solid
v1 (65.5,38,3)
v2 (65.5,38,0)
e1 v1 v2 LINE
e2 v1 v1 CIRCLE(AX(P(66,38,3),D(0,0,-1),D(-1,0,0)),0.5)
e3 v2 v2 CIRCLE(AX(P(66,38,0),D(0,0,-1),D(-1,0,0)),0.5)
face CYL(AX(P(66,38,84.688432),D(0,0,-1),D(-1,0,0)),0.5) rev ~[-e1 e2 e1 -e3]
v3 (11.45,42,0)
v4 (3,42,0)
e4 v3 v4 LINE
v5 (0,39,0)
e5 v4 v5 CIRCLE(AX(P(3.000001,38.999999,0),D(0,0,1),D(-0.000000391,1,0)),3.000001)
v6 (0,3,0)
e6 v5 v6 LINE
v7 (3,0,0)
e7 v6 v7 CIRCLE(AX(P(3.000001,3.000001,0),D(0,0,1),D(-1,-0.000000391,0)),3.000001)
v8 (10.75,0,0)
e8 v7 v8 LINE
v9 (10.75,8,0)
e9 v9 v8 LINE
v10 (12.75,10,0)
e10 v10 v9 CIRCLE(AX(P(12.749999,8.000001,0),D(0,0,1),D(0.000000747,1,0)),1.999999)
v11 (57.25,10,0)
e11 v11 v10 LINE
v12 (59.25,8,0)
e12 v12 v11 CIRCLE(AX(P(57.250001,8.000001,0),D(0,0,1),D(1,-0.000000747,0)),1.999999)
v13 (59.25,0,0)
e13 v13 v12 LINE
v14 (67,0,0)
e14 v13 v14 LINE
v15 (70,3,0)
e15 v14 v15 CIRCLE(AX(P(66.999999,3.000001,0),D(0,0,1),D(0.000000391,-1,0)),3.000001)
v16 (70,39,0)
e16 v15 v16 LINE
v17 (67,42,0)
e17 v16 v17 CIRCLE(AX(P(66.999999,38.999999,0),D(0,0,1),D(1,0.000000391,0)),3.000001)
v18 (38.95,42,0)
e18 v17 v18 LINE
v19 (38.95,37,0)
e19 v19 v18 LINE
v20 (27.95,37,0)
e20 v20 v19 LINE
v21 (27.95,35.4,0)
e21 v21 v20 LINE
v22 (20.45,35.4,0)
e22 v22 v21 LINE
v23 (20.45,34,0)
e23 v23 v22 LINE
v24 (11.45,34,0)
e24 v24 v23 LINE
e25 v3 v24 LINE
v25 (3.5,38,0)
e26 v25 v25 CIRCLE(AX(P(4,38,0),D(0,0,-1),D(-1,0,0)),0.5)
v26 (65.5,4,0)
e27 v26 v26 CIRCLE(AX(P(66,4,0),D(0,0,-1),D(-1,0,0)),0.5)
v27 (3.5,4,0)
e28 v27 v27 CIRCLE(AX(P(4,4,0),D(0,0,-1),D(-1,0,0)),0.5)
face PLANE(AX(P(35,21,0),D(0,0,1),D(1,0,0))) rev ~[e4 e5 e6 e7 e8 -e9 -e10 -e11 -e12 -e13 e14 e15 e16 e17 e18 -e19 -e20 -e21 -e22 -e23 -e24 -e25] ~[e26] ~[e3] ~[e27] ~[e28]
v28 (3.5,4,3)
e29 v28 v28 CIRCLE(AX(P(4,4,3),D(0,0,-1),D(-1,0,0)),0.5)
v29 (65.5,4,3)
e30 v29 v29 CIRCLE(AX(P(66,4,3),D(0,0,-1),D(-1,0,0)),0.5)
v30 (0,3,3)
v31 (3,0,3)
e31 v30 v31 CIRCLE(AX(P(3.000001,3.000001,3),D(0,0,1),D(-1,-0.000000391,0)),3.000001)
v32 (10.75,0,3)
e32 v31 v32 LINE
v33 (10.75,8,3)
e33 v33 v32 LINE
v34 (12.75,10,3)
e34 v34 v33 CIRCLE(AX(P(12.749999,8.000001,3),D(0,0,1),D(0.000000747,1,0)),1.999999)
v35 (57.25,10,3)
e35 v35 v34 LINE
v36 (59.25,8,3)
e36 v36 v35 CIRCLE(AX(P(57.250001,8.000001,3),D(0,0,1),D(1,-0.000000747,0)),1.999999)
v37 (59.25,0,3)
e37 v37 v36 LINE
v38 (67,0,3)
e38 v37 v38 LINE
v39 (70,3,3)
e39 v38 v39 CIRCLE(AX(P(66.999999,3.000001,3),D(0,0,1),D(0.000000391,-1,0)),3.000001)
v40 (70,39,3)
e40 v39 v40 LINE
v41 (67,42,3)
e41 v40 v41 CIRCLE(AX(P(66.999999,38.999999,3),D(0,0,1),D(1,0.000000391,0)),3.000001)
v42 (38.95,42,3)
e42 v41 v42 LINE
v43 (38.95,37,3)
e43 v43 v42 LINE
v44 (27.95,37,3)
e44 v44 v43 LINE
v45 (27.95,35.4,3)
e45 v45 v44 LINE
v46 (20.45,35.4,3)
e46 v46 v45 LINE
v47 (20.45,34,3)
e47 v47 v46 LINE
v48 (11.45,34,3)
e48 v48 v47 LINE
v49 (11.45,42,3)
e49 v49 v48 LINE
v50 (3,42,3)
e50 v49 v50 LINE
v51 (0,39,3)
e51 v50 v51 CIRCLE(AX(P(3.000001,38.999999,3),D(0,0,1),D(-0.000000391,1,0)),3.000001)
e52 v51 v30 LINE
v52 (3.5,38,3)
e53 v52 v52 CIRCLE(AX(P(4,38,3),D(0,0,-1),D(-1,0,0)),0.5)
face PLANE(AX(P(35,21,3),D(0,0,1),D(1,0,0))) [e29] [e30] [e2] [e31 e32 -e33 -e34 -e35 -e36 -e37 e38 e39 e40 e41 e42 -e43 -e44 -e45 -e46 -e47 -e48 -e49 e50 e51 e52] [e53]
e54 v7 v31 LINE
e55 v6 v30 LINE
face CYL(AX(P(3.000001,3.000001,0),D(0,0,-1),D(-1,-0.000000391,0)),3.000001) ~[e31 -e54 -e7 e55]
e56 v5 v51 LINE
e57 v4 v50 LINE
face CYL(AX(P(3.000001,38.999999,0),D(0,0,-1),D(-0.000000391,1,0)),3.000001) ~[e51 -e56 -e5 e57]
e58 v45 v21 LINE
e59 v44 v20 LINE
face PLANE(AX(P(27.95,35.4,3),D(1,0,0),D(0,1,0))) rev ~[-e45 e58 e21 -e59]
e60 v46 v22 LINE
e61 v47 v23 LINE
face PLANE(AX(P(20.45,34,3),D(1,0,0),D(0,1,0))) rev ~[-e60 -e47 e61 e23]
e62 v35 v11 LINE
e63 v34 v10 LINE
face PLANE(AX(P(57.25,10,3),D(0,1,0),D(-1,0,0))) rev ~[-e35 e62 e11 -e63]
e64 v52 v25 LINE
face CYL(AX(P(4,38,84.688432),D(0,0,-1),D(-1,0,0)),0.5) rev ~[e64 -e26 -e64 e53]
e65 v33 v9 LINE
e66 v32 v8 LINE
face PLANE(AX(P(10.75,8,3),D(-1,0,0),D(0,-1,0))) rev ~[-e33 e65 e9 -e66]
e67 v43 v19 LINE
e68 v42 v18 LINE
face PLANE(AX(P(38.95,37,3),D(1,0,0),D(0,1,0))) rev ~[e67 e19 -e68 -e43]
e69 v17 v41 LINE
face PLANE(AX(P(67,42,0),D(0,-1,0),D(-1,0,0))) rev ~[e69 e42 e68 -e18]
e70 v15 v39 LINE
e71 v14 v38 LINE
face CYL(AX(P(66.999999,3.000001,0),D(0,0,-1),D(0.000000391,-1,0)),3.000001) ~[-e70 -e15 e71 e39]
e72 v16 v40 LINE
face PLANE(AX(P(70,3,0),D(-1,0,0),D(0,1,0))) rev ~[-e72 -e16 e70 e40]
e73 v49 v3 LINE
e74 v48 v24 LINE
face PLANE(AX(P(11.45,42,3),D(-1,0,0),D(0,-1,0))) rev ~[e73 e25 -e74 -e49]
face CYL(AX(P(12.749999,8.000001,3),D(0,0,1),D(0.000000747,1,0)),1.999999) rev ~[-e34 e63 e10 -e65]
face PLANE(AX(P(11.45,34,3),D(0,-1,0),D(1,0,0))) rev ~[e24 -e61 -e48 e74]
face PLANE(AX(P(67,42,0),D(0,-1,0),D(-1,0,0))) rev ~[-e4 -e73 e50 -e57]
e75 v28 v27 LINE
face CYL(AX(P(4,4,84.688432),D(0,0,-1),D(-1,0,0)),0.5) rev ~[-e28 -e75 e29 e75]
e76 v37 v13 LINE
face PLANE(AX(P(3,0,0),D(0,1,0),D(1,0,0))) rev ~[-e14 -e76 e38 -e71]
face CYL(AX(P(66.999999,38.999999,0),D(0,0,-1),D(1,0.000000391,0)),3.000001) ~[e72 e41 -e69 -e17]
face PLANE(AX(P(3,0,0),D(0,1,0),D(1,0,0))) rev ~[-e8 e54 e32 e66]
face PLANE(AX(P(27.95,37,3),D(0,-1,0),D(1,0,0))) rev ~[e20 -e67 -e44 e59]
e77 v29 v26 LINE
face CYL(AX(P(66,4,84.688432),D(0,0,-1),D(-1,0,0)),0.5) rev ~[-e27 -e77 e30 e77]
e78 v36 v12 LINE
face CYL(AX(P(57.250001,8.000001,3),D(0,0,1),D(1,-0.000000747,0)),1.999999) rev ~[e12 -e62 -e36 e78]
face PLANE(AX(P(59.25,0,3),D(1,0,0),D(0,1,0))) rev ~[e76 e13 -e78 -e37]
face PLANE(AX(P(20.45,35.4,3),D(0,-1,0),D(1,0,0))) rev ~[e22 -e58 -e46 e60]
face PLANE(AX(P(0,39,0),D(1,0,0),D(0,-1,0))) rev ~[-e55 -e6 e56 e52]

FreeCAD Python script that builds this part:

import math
import FreeCAD as App
import Part
import Sketcher

V = App.Vector
Q = App.Units.Quantity

doc = App.newDocument("Part")
body = doc.addObject("PartDesign::Body", "Body")

sketch1 = body.newObject("Sketcher::SketchObject", "Sketch")
sketch1.AttachmentSupport = (doc.getObject("XY_Plane"), [""])
sketch1.MapMode = "FlatFace"
sketch1.addGeometry(Part.ArcOfCircle(Part.Circle(V(3, 3, 0), V(0, 0, 1), 3), math.radians(-180), math.radians(-90)), False)
sketch1.addGeometry(Part.LineSegment(V(3, 0, 0), V(67, 0, 0)), False)
sketch1.addGeometry(Part.ArcOfCircle(Part.Circle(V(67, 3, 0), V(0, 0, 1), 3), math.radians(-90), math.radians(0)), False)
sketch1.addGeometry(Part.LineSegment(V(70, 3, 0), V(70, 39, 0)), False)
sketch1.addGeometry(Part.ArcOfCircle(Part.Circle(V(67, 39, 0), V(0, 0, 1), 3), math.radians(0), math.radians(90)), False)
sketch1.addGeometry(Part.LineSegment(V(67, 42, 0), V(3, 42, 0)), False)
sketch1.addGeometry(Part.ArcOfCircle(Part.Circle(V(3, 39, 0), V(0, 0, 1), 3), math.radians(90), math.radians(180)), False)
sketch1.addGeometry(Part.LineSegment(V(0, 39, 0), V(0, 3, 0)), False)
sketch1.addConstraint(Sketcher.Constraint("Tangent", 0, 2, 1, 1))
sketch1.addConstraint(Sketcher.Constraint("Tangent", 1, 2, 2, 1))
sketch1.addConstraint(Sketcher.Constraint("Tangent", 2, 2, 3, 1))
sketch1.addConstraint(Sketcher.Constraint("Tangent", 3, 2, 4, 1))
sketch1.addConstraint(Sketcher.Constraint("Tangent", 4, 2, 5, 1))
sketch1.addConstraint(Sketcher.Constraint("Tangent", 5, 2, 6, 1))
sketch1.addConstraint(Sketcher.Constraint("Tangent", 6, 2, 7, 1))
sketch1.addConstraint(Sketcher.Constraint("Tangent", 7, 2, 0, 1))
sketch1.addConstraint(Sketcher.Constraint("Horizontal", 1))
sketch1.addConstraint(Sketcher.Constraint("Vertical", 3))
sketch1.addConstraint(Sketcher.Constraint("Horizontal", 5))
sketch1.addConstraint(Sketcher.Constraint("Vertical", 7))
sketch1.addConstraint(Sketcher.Constraint("Equal", 0, 2))
sketch1.addConstraint(Sketcher.Constraint("Equal", 2, 4))
sketch1.addConstraint(Sketcher.Constraint("Equal", 4, 6))
sketch1.addConstraint(Sketcher.Constraint("PointOnObject", 0, 2, -1))
sketch1.addConstraint(Sketcher.Constraint("PointOnObject", 6, 2, -2))
sketch1.addConstraint(Sketcher.Constraint("Radius", 0, Q("3.000001 mm")))
sketch1.addConstraint(Sketcher.Constraint("DistanceX", 1, 1, 1, 2, Q("64 mm")))
sketch1.addConstraint(Sketcher.Constraint("DistanceY", 3, 1, 3, 2, Q("36 mm")))
pad1 = body.newObject("PartDesign::Pad", "Pad")
pad1.Profile = sketch1
pad1.Length = 3

sketch2 = body.newObject("Sketcher::SketchObject", "Sketch001")
sketch2.AttachmentSupport = (doc.getObject("XY_Plane"), [""])
sketch2.MapMode = "FlatFace"
sketch2.AttachmentOffset = App.Placement(V(0, 0, 3), App.Rotation())
sketch2.addGeometry(Part.LineSegment(V(57.2, 10, 0), V(12.8, 10, 0)), False)
sketch2.addGeometry(Part.ArcOfCircle(Part.Circle(V(12.7, 8, 0), V(0, 0, 1), 2), math.radians(90), math.radians(180)), False)
sketch2.addGeometry(Part.LineSegment(V(10.8, 8, 0), V(10.8, 0, 0)), False)
sketch2.addGeometry(Part.LineSegment(V(10.8, 0, 0), V(59.2, 0, 0)), False)
sketch2.addGeometry(Part.LineSegment(V(59.2, 0, 0), V(59.2, 8, 0)), False)
sketch2.addGeometry(Part.ArcOfCircle(Part.Circle(V(57.3, 8, 0), V(0, 0, 1), 2), math.radians(0), math.radians(90)), False)
sketch2.addConstraint(Sketcher.Constraint("Tangent", 0, 2, 1, 1))
sketch2.addConstraint(Sketcher.Constraint("Tangent", 1, 2, 2, 1))
sketch2.addConstraint(Sketcher.Constraint("Coincident", 2, 2, 3, 1))
sketch2.addConstraint(Sketcher.Constraint("Coincident", 3, 2, 4, 1))
sketch2.addConstraint(Sketcher.Constraint("Tangent", 4, 2, 5, 1))
sketch2.addConstraint(Sketcher.Constraint("Tangent", 5, 2, 0, 1))
sketch2.addConstraint(Sketcher.Constraint("Horizontal", 0))
sketch2.addConstraint(Sketcher.Constraint("Vertical", 2))
sketch2.addConstraint(Sketcher.Constraint("Horizontal", 3))
sketch2.addConstraint(Sketcher.Constraint("Vertical", 4))
sketch2.addConstraint(Sketcher.Constraint("Equal", 1, 5))
sketch2.addConstraint(Sketcher.Constraint("PointOnObject", 2, 2, -1))
sketch2.addConstraint(Sketcher.Constraint("Radius", 1, Q("1.999999 mm")))
sketch2.addConstraint(Sketcher.Constraint("DistanceY", 2, 2, 2, 1, Q("8 mm")))
sketch2.addConstraint(Sketcher.Constraint("DistanceX", 0, 2, 0, 1, Q("44.5 mm")))
sketch2.addConstraint(Sketcher.Constraint("DistanceX", -1, 1, 1, 3, Q("12.749999 mm")))
pocket1 = body.newObject("PartDesign::Pocket", "Pocket")
pocket1.Profile = sketch2
pocket1.Type = "ThroughAll"

sketch3 = body.newObject("Sketcher::SketchObject", "Sketch002")
sketch3.AttachmentSupport = (doc.getObject("XY_Plane"), [""])
sketch3.MapMode = "FlatFace"
sketch3.AttachmentOffset = App.Placement(V(0, 0, 3), App.Rotation())
sketch3.addGeometry(Part.LineSegment(V(39, 37, 0), V(39, 42, 0)), False)
sketch3.addGeometry(Part.LineSegment(V(39, 42, 0), V(11.4, 42, 0)), False)
sketch3.addGeometry(Part.LineSegment(V(11.4, 42, 0), V(11.4, 34, 0)), False)
sketch3.addGeometry(Part.LineSegment(V(11.4, 34, 0), V(20.4, 34, 0)), False)
sketch3.addGeometry(Part.LineSegment(V(20.4, 34, 0), V(20.4, 35.4, 0)), False)
sketch3.addGeometry(Part.LineSegment(V(20.4, 35.4, 0), V(27.9, 35.4, 0)), False)
sketch3.addGeometry(Part.LineSegment(V(27.9, 35.4, 0), V(27.9, 37, 0)), False)
sketch3.addGeometry(Part.LineSegment(V(27.9, 37, 0), V(39, 37, 0)), False)
sketch3.addConstraint(Sketcher.Constraint("Coincident", 0, 2, 1, 1))
sketch3.addConstraint(Sketcher.Constraint("Coincident", 1, 2, 2, 1))
sketch3.addConstraint(Sketcher.Constraint("Coincident", 2, 2, 3, 1))
sketch3.addConstraint(Sketcher.Constraint("Coincident", 3, 2, 4, 1))
sketch3.addConstraint(Sketcher.Constraint("Coincident", 4, 2, 5, 1))
sketch3.addConstraint(Sketcher.Constraint("Coincident", 5, 2, 6, 1))
sketch3.addConstraint(Sketcher.Constraint("Coincident", 6, 2, 7, 1))
sketch3.addConstraint(Sketcher.Constraint("Coincident", 7, 2, 0, 1))
sketch3.addConstraint(Sketcher.Constraint("Vertical", 0))
sketch3.addConstraint(Sketcher.Constraint("Horizontal", 1))
sketch3.addConstraint(Sketcher.Constraint("Vertical", 2))
sketch3.addConstraint(Sketcher.Constraint("Horizontal", 3))
sketch3.addConstraint(Sketcher.Constraint("Vertical", 4))
sketch3.addConstraint(Sketcher.Constraint("Horizontal", 5))
sketch3.addConstraint(Sketcher.Constraint("Vertical", 6))
sketch3.addConstraint(Sketcher.Constraint("Horizontal", 7))
sketch3.addConstraint(Sketcher.Constraint("DistanceX", 3, 1, 3, 2, Q("9 mm")))
sketch3.addConstraint(Sketcher.Constraint("DistanceX", 7, 1, 7, 2, Q("11 mm")))
sketch3.addConstraint(Sketcher.Constraint("DistanceY", 0, 1, 0, 2, Q("5 mm")))
sketch3.addConstraint(Sketcher.Constraint("DistanceY", 2, 2, 2, 1, Q("8 mm")))
sketch3.addConstraint(Sketcher.Constraint("DistanceX", 1, 2, 1, 1, Q("27.5 mm")))
sketch3.addConstraint(Sketcher.Constraint("DistanceY", 4, 1, 4, 2, Q("1.4 mm")))
sketch3.addConstraint(Sketcher.Constraint("DistanceY", -1, 1, 0, 2, Q("42 mm")))
sketch3.addConstraint(Sketcher.Constraint("DistanceX", -1, 1, 0, 2, Q("38.95 mm")))
pocket2 = body.newObject("PartDesign::Pocket", "Pocket001")
pocket2.Profile = sketch3
pocket2.Type = "ThroughAll"

sketch4 = body.newObject("Sketcher::SketchObject", "Sketch003")
sketch4.AttachmentSupport = (doc.getObject("XY_Plane"), [""])
sketch4.MapMode = "FlatFace"
sketch4.AttachmentOffset = App.Placement(V(0, 0, 3), App.Rotation())
sketch4.addGeometry(Part.Circle(V(4, 38, 0), V(0, 0, 1), 0.5), False)
sketch4.addGeometry(Part.Circle(V(66, 38, 0), V(0, 0, 1), 0.5), False)
sketch4.addGeometry(Part.Circle(V(66, 4, 0), V(0, 0, 1), 0.5), False)
sketch4.addGeometry(Part.Circle(V(4, 4, 0), V(0, 0, 1), 0.5), False)
sketch4.addConstraint(Sketcher.Constraint("Equal", 0, 1))
sketch4.addConstraint(Sketcher.Constraint("Equal", 1, 2))
sketch4.addConstraint(Sketcher.Constraint("Equal", 2, 3))
sketch4.addConstraint(Sketcher.Constraint("Horizontal", 0, 3, 1, 3))
sketch4.addConstraint(Sketcher.Constraint("Horizontal", 2, 3, 3, 3))
sketch4.addConstraint(Sketcher.Constraint("Vertical", 1, 3, 2, 3))
sketch4.addConstraint(Sketcher.Constraint("Vertical", 0, 3, 3, 3))
sketch4.addConstraint(Sketcher.Constraint("Diameter", 0, Q("1 mm")))
sketch4.addConstraint(Sketcher.Constraint("DistanceX", -1, 1, 0, 3, Q("4 mm")))
sketch4.addConstraint(Sketcher.Constraint("DistanceY", -1, 1, 0, 3, Q("38 mm")))
sketch4.addConstraint(Sketcher.Constraint("DistanceX", -1, 1, 1, 3, Q("66 mm")))
sketch4.addConstraint(Sketcher.Constraint("DistanceY", -1, 1, 2, 3, Q("4 mm")))
doc.recompute()
hole = body.newObject("PartDesign::Hole", "Hole")
hole.Profile = sketch4
hole.ThreadType = "None"
hole.Diameter = 1
hole.DepthType = "ThroughAll"

doc.recompute()
